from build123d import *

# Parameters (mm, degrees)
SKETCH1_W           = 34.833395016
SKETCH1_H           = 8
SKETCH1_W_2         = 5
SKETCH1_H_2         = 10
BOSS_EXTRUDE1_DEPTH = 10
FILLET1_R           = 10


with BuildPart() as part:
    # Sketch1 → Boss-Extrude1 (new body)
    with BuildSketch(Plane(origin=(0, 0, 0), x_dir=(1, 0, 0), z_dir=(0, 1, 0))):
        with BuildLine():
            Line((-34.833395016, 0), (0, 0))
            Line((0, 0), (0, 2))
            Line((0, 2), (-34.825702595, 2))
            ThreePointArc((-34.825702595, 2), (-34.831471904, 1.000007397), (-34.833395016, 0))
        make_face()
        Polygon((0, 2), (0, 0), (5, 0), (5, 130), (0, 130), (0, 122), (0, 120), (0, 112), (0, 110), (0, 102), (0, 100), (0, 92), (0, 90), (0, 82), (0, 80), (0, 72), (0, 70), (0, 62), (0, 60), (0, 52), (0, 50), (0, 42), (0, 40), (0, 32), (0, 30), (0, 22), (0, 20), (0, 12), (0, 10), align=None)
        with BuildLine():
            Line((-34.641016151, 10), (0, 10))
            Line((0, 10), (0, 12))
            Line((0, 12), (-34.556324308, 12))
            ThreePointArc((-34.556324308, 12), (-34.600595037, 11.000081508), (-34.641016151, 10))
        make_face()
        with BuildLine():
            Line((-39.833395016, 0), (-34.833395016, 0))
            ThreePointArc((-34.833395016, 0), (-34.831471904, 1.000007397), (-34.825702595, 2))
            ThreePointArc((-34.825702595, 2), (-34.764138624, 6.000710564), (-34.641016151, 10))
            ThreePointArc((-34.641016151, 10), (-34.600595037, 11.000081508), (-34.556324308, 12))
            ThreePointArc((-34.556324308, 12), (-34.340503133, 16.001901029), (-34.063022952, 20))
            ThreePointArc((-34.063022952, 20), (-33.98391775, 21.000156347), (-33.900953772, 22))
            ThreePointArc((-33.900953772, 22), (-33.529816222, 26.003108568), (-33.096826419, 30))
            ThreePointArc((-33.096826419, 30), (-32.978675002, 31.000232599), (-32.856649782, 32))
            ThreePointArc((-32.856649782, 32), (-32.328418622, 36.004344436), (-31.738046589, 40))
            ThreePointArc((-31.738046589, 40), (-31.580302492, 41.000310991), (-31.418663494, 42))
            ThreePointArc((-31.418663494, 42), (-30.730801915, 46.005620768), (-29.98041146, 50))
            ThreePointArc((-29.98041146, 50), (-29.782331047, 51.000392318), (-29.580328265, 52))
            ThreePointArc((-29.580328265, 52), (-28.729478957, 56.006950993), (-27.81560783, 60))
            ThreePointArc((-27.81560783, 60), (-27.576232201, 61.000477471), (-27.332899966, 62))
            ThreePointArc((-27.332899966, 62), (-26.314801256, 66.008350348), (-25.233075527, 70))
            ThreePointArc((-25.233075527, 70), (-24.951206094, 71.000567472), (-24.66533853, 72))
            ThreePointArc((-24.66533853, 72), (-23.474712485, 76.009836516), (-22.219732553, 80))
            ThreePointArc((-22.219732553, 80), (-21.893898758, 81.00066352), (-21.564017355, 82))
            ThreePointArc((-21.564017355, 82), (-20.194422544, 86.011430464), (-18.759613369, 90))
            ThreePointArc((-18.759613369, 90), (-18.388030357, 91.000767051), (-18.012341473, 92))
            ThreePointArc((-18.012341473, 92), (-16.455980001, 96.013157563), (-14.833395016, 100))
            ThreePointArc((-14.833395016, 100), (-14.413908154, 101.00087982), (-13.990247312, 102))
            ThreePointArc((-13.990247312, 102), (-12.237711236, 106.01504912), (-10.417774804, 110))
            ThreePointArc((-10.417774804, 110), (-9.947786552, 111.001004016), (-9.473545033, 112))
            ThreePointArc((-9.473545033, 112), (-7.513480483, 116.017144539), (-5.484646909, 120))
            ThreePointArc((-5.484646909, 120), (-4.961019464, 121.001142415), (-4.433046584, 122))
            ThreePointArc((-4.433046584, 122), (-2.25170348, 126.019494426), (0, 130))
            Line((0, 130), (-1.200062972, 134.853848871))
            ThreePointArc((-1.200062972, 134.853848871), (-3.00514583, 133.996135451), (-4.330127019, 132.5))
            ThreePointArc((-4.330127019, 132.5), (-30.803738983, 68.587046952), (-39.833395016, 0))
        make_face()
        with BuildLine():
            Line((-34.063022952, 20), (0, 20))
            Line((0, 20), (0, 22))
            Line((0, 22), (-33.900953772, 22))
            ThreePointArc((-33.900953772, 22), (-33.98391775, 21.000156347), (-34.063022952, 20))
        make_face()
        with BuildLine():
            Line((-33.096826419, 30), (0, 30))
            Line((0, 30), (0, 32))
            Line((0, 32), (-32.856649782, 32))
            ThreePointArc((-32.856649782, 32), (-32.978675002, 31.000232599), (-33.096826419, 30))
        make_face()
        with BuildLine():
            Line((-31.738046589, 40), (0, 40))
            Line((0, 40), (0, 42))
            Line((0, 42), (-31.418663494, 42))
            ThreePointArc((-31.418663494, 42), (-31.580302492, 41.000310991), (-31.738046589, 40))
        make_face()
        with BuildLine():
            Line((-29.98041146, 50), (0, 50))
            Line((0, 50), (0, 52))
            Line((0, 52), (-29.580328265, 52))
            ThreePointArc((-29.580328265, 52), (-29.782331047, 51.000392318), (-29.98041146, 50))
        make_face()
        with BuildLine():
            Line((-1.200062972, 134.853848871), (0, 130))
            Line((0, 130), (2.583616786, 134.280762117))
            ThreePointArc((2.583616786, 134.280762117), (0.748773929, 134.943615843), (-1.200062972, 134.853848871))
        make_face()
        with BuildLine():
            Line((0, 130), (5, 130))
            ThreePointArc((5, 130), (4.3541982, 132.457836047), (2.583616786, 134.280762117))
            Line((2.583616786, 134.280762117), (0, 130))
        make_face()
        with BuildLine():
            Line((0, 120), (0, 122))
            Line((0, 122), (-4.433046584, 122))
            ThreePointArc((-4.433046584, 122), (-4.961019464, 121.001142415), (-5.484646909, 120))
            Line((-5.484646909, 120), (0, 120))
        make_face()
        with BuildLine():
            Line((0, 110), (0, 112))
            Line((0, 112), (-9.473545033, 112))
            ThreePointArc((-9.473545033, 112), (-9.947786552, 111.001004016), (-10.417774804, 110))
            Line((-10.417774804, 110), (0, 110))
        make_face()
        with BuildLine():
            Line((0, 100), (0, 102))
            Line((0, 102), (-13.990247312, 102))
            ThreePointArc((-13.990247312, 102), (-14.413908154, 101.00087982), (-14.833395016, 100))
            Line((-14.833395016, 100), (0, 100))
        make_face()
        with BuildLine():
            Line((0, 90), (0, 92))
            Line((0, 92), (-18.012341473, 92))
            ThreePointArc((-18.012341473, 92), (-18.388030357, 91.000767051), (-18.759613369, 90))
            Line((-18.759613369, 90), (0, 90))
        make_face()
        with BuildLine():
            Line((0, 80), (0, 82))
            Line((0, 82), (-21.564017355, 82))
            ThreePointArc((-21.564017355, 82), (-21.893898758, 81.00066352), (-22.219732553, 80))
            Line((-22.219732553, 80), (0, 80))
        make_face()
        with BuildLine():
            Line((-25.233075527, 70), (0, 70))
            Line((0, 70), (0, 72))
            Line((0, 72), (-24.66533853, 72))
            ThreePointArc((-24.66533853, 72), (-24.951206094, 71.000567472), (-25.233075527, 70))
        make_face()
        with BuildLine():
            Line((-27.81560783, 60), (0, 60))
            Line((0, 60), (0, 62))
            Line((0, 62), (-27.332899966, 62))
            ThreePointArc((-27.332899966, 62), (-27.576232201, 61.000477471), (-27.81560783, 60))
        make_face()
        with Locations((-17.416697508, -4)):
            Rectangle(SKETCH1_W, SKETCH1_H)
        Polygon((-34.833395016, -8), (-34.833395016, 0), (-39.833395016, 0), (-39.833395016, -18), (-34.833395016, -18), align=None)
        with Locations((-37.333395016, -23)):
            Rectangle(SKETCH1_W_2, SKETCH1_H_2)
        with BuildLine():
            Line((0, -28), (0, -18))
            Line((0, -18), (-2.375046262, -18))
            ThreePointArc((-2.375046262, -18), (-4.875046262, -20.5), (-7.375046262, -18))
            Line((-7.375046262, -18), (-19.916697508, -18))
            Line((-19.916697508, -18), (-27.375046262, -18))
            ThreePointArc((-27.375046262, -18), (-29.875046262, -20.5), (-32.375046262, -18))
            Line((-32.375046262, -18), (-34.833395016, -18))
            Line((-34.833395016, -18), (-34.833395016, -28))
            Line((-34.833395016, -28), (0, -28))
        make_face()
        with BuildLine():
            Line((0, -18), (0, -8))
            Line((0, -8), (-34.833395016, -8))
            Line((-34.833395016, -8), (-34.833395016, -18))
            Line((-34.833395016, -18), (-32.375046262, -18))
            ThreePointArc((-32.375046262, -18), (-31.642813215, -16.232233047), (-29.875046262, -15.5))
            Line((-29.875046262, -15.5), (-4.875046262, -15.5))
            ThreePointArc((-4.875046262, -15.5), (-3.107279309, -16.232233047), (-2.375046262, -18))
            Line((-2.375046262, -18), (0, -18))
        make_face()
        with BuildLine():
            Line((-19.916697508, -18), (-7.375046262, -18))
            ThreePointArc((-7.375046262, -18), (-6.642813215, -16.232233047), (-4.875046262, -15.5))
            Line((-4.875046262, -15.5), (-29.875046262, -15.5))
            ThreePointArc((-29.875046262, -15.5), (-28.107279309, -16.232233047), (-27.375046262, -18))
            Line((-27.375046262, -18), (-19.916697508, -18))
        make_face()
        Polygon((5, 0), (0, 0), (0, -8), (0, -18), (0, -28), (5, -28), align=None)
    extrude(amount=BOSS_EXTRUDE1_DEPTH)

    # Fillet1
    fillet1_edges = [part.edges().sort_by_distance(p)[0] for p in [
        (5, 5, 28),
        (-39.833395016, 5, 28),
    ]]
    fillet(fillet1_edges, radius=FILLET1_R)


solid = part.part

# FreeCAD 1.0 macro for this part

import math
import FreeCAD as App
import Part
import Sketcher
Q = App.Units.Quantity


def edges_at(feature, points):
    """Names of the edges that pass closest to the given points."""
    edges = feature.Shape.Edges
    near = lambda p: min(range(len(edges)), key=lambda i: edges[i].distToShape(Part.Vertex(*p))[0])
    return sorted({f"Edge{near(p) + 1}" for p in points})

doc = App.newDocument("Part")
body = doc.addObject("PartDesign::Body", "Body")

# Sketch on XZ plane
sketch1 = body.newObject("Sketcher::SketchObject", "Sketch")
sketch1.AttachmentSupport = (doc.getObject("XZ_Plane"), [""])
sketch1.MapMode = "FlatFace"
sketch1.addGeometry(Part.ArcOfCircle(Part.Circle(App.Vector(0, -130, 0), App.Vector(0, 0, 1), 5), math.radians(-59), math.radians(0)), False)
sketch1.addGeometry(Part.ArcOfCircle(Part.Circle(App.Vector(0, -130, 0), App.Vector(0, 0, 1), 5), math.radians(-104), math.radians(-59)), False)
sketch1.addGeometry(Part.ArcOfCircle(Part.Circle(App.Vector(0, -130, 0), App.Vector(0, 0, 1), 5), math.radians(-150), math.radians(-104)), False)
sketch1.addGeometry(Part.ArcOfCircle(Part.Circle(App.Vector(225.2, 0, 0), App.Vector(0, 0, 1), 265), math.radians(180), math.radians(210)), False)
sketch1.addGeometry(Part.LineSegment(App.Vector(-39.8, 0, 0), App.Vector(-39.8, 28, 0)), False)
sketch1.addGeometry(Part.LineSegment(App.Vector(-39.8, 28, 0), App.Vector(5, 28, 0)), False)
sketch1.addGeometry(Part.LineSegment(App.Vector(5, 28, 0), App.Vector(5, -130, 0)), False)
sketch1.addGeometry(Part.ArcOfCircle(Part.Circle(App.Vector(-4.9, 18, 0), App.Vector(0, 0, 1), 2.5), math.radians(0), math.radians(180)), False)
sketch1.addGeometry(Part.ArcOfCircle(Part.Circle(App.Vector(-4.9, 18, 0), App.Vector(0, 0, 1), 2.5), math.radians(180), math.radians(270)), False)
sketch1.addGeometry(Part.ArcOfCircle(Part.Circle(App.Vector(-4.9, 18, 0), App.Vector(0, 0, 1), 2.5), math.radians(-90), math.radians(0)), False)
sketch1.addGeometry(Part.ArcOfCircle(Part.Circle(App.Vector(-29.9, 18, 0), App.Vector(0, 0, 1), 2.5), math.radians(0), math.radians(180)), False)
sketch1.addGeometry(Part.ArcOfCircle(Part.Circle(App.Vector(-29.9, 18, 0), App.Vector(0, 0, 1), 2.5), math.radians(180), math.radians(270)), False)
sketch1.addGeometry(Part.ArcOfCircle(Part.Circle(App.Vector(-29.9, 18, 0), App.Vector(0, 0, 1), 2.5), math.radians(-90), math.radians(0)), False)
sketch1.addGeometry(Part.LineSegment(App.Vector(-34.6, -10, 0), App.Vector(0, -10, 0)), False)
sketch1.addGeometry(Part.LineSegment(App.Vector(0, -10, 0), App.Vector(0, -2, 0)), False)
sketch1.addGeometry(Part.LineSegment(App.Vector(0, -2, 0), App.Vector(-34.8, -2, 0)), False)
sketch1.addGeometry(Part.ArcOfCircle(Part.Circle(App.Vector(225.2, 0, 0), App.Vector(0, 0, 1), 260), math.radians(-179.56), math.radians(-177.8)), False)
sketch1.addGeometry(Part.ArcOfCircle(Part.Circle(App.Vector(225.2, 0, 0), App.Vector(0, 0, 1), 260), math.radians(-177.35), math.radians(-175.59)), False)
sketch1.addGeometry(Part.LineSegment(App.Vector(-34.1, -20, 0), App.Vector(0, -20, 0)), False)
sketch1.addGeometry(Part.LineSegment(App.Vector(0, -20, 0), App.Vector(0, -12, 0)), False)
sketch1.addGeometry(Part.LineSegment(App.Vector(0, -12, 0), App.Vector(-34.6, -12, 0)), False)
sketch1.addGeometry(Part.ArcOfCircle(Part.Circle(App.Vector(225.2, 0, 0), App.Vector(0, 0, 1), 260), math.radians(-175.15), math.radians(-173.37)), False)
sketch1.addGeometry(Part.LineSegment(App.Vector(-33.1, -30, 0), App.Vector(0, -30, 0)), False)
sketch1.addGeometry(Part.LineSegment(App.Vector(0, -30, 0), App.Vector(0, -22, 0)), False)
sketch1.addGeometry(Part.LineSegment(App.Vector(0, -22, 0), App.Vector(-33.9, -22, 0)), False)
sketch1.addGeometry(Part.ArcOfCircle(Part.Circle(App.Vector(225.2, 0, 0), App.Vector(0, 0, 1), 260), math.radians(-172.93), math.radians(-171.15)), False)
sketch1.addGeometry(Part.LineSegment(App.Vector(-31.7, -40, 0), App.Vector(0, -40, 0)), False)
sketch1.addGeometry(Part.LineSegment(App.Vector(0, -40, 0), App.Vector(0, -32, 0)), False)
sketch1.addGeometry(Part.LineSegment(App.Vector(0, -32, 0), App.Vector(-32.9, -32, 0)), False)
sketch1.addGeometry(Part.ArcOfCircle(Part.Circle(App.Vector(225.2, 0, 0), App.Vector(0, 0, 1), 260), math.radians(-170.7), math.radians(-168.91)), False)
sketch1.addGeometry(Part.LineSegment(App.Vector(-30, -50, 0), App.Vector(0, -50, 0)), False)
sketch1.addGeometry(Part.LineSegment(App.Vector(0, -50, 0), App.Vector(0, -42, 0)), False)
sketch1.addGeometry(Part.LineSegment(App.Vector(0, -42, 0), App.Vector(-31.4, -42, 0)), False)
sketch1.addGeometry(Part.ArcOfCircle(Part.Circle(App.Vector(225.2, 0, 0), App.Vector(0, 0, 1), 260), math.radians(-152.02), math.radians(-150)), False)
sketch1.addGeometry(Part.LineSegment(App.Vector(0, -130, 0), App.Vector(0, -122, 0)), False)
sketch1.addGeometry(Part.LineSegment(App.Vector(0, -122, 0), App.Vector(-4.4, -122, 0)), False)
sketch1.addGeometry(Part.LineSegment(App.Vector(0, -120, 0), App.Vector(0, -112, 0)), False)
sketch1.addGeometry(Part.LineSegment(App.Vector(0, -112, 0), App.Vector(-9.5, -112, 0)), False)
sketch1.addGeometry(Part.ArcOfCircle(Part.Circle(App.Vector(225.2, 0, 0), App.Vector(0, 0, 1), 260), math.radians(-154.48), math.radians(-152.51)), False)
sketch1.addGeometry(Part.LineSegment(App.Vector(-5.5, -120, 0), App.Vector(0, -120, 0)), False)
sketch1.addGeometry(Part.LineSegment(App.Vector(0, -110, 0), App.Vector(0, -102, 0)), False)
sketch1.addGeometry(Part.LineSegment(App.Vector(0, -102, 0), App.Vector(-14, -102, 0)), False)
sketch1.addGeometry(Part.ArcOfCircle(Part.Circle(App.Vector(225.2, 0, 0), App.Vector(0, 0, 1), 260), math.radians(-156.9), math.radians(-154.97)), False)
sketch1.addGeometry(Part.LineSegment(App.Vector(-10.4, -110, 0), App.Vector(0, -110, 0)), False)
sketch1.addGeometry(Part.LineSegment(App.Vector(0, -100, 0), App.Vector(0, -92, 0)), False)
sketch1.addGeometry(Part.LineSegment(App.Vector(0, -92, 0), App.Vector(-18, -92, 0)), False)
sketch1.addGeometry(Part.ArcOfCircle(Part.Circle(App.Vector(225.2, 0, 0), App.Vector(0, 0, 1), 260), math.radians(-159.28), math.radians(-157.38)), False)
sketch1.addGeometry(Part.LineSegment(App.Vector(-14.8, -100, 0), App.Vector(0, -100, 0)), False)
sketch1.addGeometry(Part.LineSegment(App.Vector(0, -90, 0), App.Vector(0, -82, 0)), False)
sketch1.addGeometry(Part.LineSegment(App.Vector(0, -82, 0), App.Vector(-21.6, -82, 0)), False)
sketch1.addGeometry(Part.ArcOfCircle(Part.Circle(App.Vector(225.2, 0, 0), App.Vector(0, 0, 1), 260), math.radians(-161.62), math.radians(-159.75)), False)
sketch1.addGeometry(Part.LineSegment(App.Vector(-18.8, -90, 0), App.Vector(0, -90, 0)), False)
sketch1.addGeometry(Part.LineSegment(App.Vector(0, -80, 0), App.Vector(0, -72, 0)), False)
sketch1.addGeometry(Part.LineSegment(App.Vector(0, -72, 0), App.Vector(-24.7, -72, 0)), False)
sketch1.addGeometry(Part.ArcOfCircle(Part.Circle(App.Vector(225.2, 0, 0), App.Vector(0, 0, 1), 260), math.radians(-163.92), math.radians(-162.08)), False)
sketch1.addGeometry(Part.LineSegment(App.Vector(-22.2, -80, 0), App.Vector(0, -80, 0)), False)
sketch1.addGeometry(Part.LineSegment(App.Vector(0, -70, 0), App.Vector(0, -62, 0)), False)
sketch1.addGeometry(Part.LineSegment(App.Vector(0, -62, 0), App.Vector(-27.3, -62, 0)), False)
sketch1.addGeometry(Part.ArcOfCircle(Part.Circle(App.Vector(225.2, 0, 0), App.Vector(0, 0, 1), 260), math.radians(-166.2), math.radians(-164.38)), False)
sketch1.addGeometry(Part.LineSegment(App.Vector(-25.2, -70, 0), App.Vector(0, -70, 0)), False)
sketch1.addGeometry(Part.LineSegment(App.Vector(0, -60, 0), App.Vector(0, -52, 0)), False)
sketch1.addGeometry(Part.LineSegment(App.Vector(0, -52, 0), App.Vector(-29.6, -52, 0)), False)
sketch1.addGeometry(Part.ArcOfCircle(Part.Circle(App.Vector(225.2, 0, 0), App.Vector(0, 0, 1), 260), math.radians(-168.46), math.radians(-166.66)), False)
sketch1.addGeometry(Part.LineSegment(App.Vector(-27.8, -60, 0), App.Vector(0, -60, 0)), False)
sketch1.addConstraint(Sketcher.Constraint("Tangent", 0, 1, 1, 2))
sketch1.addConstraint(Sketcher.Constraint("Tangent", 1, 1, 2, 2))
sketch1.addConstraint(Sketcher.Constraint("Tangent", 2, 1, 3, 2))
sketch1.addConstraint(Sketcher.Constraint("Tangent", 3, 1, 4, 1))
sketch1.addConstraint(Sketcher.Constraint("Coincident", 4, 2, 5, 1))
sketch1.addConstraint(Sketcher.Constraint("Coincident", 5, 2, 6, 1))
sketch1.addConstraint(Sketcher.Constraint("Tangent", 6, 2, 0, 2))
sketch1.addConstraint(Sketcher.Constraint("Tangent", 7, 2, 8, 1))
sketch1.addConstraint(Sketcher.Constraint("Tangent", 8, 2, 9, 1))
sketch1.addConstraint(Sketcher.Constraint("Tangent", 9, 2, 7, 1))
sketch1.addConstraint(Sketcher.Constraint("Tangent", 10, 2, 11, 1))
sketch1.addConstraint(Sketcher.Constraint("Tangent", 11, 2, 12, 1))
sketch1.addConstraint(Sketcher.Constraint("Tangent", 12, 2, 10, 1))
sketch1.addConstraint(Sketcher.Constraint("Coincident", 13, 2, 14, 1))
sketch1.addConstraint(Sketcher.Constraint("Coincident", 14, 2, 15, 1))
sketch1.addConstraint(Sketcher.Constraint("Coincident", 15, 2, 16, 1))
sketch1.addConstraint(Sketcher.Constraint("Coincident", 16, 2, 13, 1))
sketch1.addConstraint(Sketcher.Constraint("Coincident", 17, 2, 18, 1))
sketch1.addConstraint(Sketcher.Constraint("Coincident", 18, 2, 19, 1))
sketch1.addConstraint(Sketcher.Constraint("Coincident", 19, 2, 20, 1))
sketch1.addConstraint(Sketcher.Constraint("Coincident", 20, 2, 17, 1))
sketch1.addConstraint(Sketcher.Constraint("Coincident", 21, 2, 22, 1))
sketch1.addConstraint(Sketcher.Constraint("Coincident", 22, 2, 23, 1))
sketch1.addConstraint(Sketcher.Constraint("Coincident", 23, 2, 24, 1))
sketch1.addConstraint(Sketcher.Constraint("Coincident", 24, 2, 21, 1))
sketch1.addConstraint(Sketcher.Constraint("Coincident", 25, 2, 26, 1))
sketch1.addConstraint(Sketcher.Constraint("Coincident", 26, 2, 27, 1))
sketch1.addConstraint(Sketcher.Constraint("Coincident", 27, 2, 28, 1))
sketch1.addConstraint(Sketcher.Constraint("Coincident", 28, 2, 25, 1))
sketch1.addConstraint(Sketcher.Constraint("Coincident", 29, 2, 30, 1))
sketch1.addConstraint(Sketcher.Constraint("Coincident", 30, 2, 31, 1))
sketch1.addConstraint(Sketcher.Constraint("Coincident", 31, 2, 32, 1))
sketch1.addConstraint(Sketcher.Constraint("Coincident", 32, 2, 29, 1))
sketch1.addConstraint(Sketcher.Constraint("Coincident", 33, 2, 34, 1))
sketch1.addConstraint(Sketcher.Constraint("Coincident", 34, 2, 35, 1))
sketch1.addConstraint(Sketcher.Constraint("Coincident", 35, 2, 33, 1))
sketch1.addConstraint(Sketcher.Constraint("Coincident", 36, 2, 37, 1))
sketch1.addConstraint(Sketcher.Constraint("Coincident", 37, 2, 38, 1))
sketch1.addConstraint(Sketcher.Constraint("Coincident", 38, 2, 39, 1))
sketch1.addConstraint(Sketcher.Constraint("Coincident", 39, 2, 36, 1))
sketch1.addConstraint(Sketcher.Constraint("Coincident", 40, 2, 41, 1))
sketch1.addConstraint(Sketcher.Constraint("Coincident", 41, 2, 42, 1))
sketch1.addConstraint(Sketcher.Constraint("Coincident", 42, 2, 43, 1))
sketch1.addConstraint(Sketcher.Constraint("Coincident", 43, 2, 40, 1))
sketch1.addConstraint(Sketcher.Constraint("Coincident", 44, 2, 45, 1))
sketch1.addConstraint(Sketcher.Constraint("Coincident", 45, 2, 46, 1))
sketch1.addConstraint(Sketcher.Constraint("Coincident", 46, 2, 47, 1))
sketch1.addConstraint(Sketcher.Constraint("Coincident", 47, 2, 44, 1))
sketch1.addConstraint(Sketcher.Constraint("Coincident", 48, 2, 49, 1))
sketch1.addConstraint(Sketcher.Constraint("Coincident", 49, 2, 50, 1))
sketch1.addConstraint(Sketcher.Constraint("Coincident", 50, 2, 51, 1))
sketch1.addConstraint(Sketcher.Constraint("Coincident", 51, 2, 48, 1))
sketch1.addConstraint(Sketcher.Constraint("Coincident", 52, 2, 53, 1))
sketch1.addConstraint(Sketcher.Constraint("Coincident", 53, 2, 54, 1))
sketch1.addConstraint(Sketcher.Constraint("Coincident", 54, 2, 55, 1))
sketch1.addConstraint(Sketcher.Constraint("Coincident", 55, 2, 52, 1))
sketch1.addConstraint(Sketcher.Constraint("Coincident", 56, 2, 57, 1))
sketch1.addConstraint(Sketcher.Constraint("Coincident", 57, 2, 58, 1))
sketch1.addConstraint(Sketcher.Constraint("Coincident", 58, 2, 59, 1))
sketch1.addConstraint(Sketcher.Constraint("Coincident", 59, 2, 56, 1))
sketch1.addConstraint(Sketcher.Constraint("Coincident", 60, 2, 61, 1))
sketch1.addConstraint(Sketcher.Constraint("Coincident", 61, 2, 62, 1))
sketch1.addConstraint(Sketcher.Constraint("Coincident", 62, 2, 63, 1))
sketch1.addConstraint(Sketcher.Constraint("Coincident", 63, 2, 60, 1))
sketch1.addConstraint(Sketcher.Constraint("Vertical", 4))
sketch1.addConstraint(Sketcher.Constraint("Horizontal", 5))
sketch1.addConstraint(Sketcher.Constraint("Vertical", 6))
sketch1.addConstraint(Sketcher.Constraint("Horizontal", 13))
sketch1.addConstraint(Sketcher.Constraint("Vertical", 14))
sketch1.addConstraint(Sketcher.Constraint("Horizontal", 15))
sketch1.addConstraint(Sketcher.Constraint("Horizontal", 18))
sketch1.addConstraint(Sketcher.Constraint("Vertical", 19))
sketch1.addConstraint(Sketcher.Constraint("Horizontal", 20))
sketch1.addConstraint(Sketcher.Constraint("Horizontal", 22))
sketch1.addConstraint(Sketcher.Constraint("Vertical", 23))
sketch1.addConstraint(Sketcher.Constraint("Horizontal", 24))
sketch1.addConstraint(Sketcher.Constraint("Horizontal", 26))
sketch1.addConstraint(Sketcher.Constraint("Vertical", 27))
sketch1.addConstraint(Sketcher.Constraint("Horizontal", 28))
sketch1.addConstraint(Sketcher.Constraint("Horizontal", 30))
sketch1.addConstraint(Sketcher.Constraint("Vertical", 31))
sketch1.addConstraint(Sketcher.Constraint("Horizontal", 32))
sketch1.addConstraint(Sketcher.Constraint("Vertical", 34))
sketch1.addConstraint(Sketcher.Constraint("Horizontal", 35))
sketch1.addConstraint(Sketcher.Constraint("Vertical", 36))
sketch1.addConstraint(Sketcher.Constraint("Horizontal", 37))
sketch1.addConstraint(Sketcher.Constraint("Horizontal", 39))
sketch1.addConstraint(Sketcher.Constraint("Vertical", 40))
sketch1.addConstraint(Sketcher.Constraint("Horizontal", 41))
sketch1.addConstraint(Sketcher.Constraint("Horizontal", 43))
sketch1.addConstraint(Sketcher.Constraint("Vertical", 44))
sketch1.addConstraint(Sketcher.Constraint("Horizontal", 45))
sketch1.addConstraint(Sketcher.Constraint("Horizontal", 47))
sketch1.addConstraint(Sketcher.Constraint("Vertical", 48))
sketch1.addConstraint(Sketcher.Constraint("Horizontal", 49))
sketch1.addConstraint(Sketcher.Constraint("Horizontal", 51))
sketch1.addConstraint(Sketcher.Constraint("Vertical", 52))
sketch1.addConstraint(Sketcher.Constraint("Horizontal", 53))
sketch1.addConstraint(Sketcher.Constraint("Horizontal", 55))
sketch1.addConstraint(Sketcher.Constraint("Vertical", 56))
sketch1.addConstraint(Sketcher.Constraint("Horizontal", 57))
sketch1.addConstraint(Sketcher.Constraint("Horizontal", 59))
sketch1.addConstraint(Sketcher.Constraint("Vertical", 60))
sketch1.addConstraint(Sketcher.Constraint("Horizontal", 61))
sketch1.addConstraint(Sketcher.Constraint("Horizontal", 63))
sketch1.addConstraint(Sketcher.Constraint("Coincident", 2, 3, 0, 3))
sketch1.addConstraint(Sketcher.Constraint("Coincident", 16, 3, 3, 3))
sketch1.addConstraint(Sketcher.Constraint("Coincident", 17, 3, 3, 3))
sketch1.addConstraint(Sketcher.Constraint("Coincident", 21, 3, 3, 3))
sketch1.addConstraint(Sketcher.Constraint("Coincident", 25, 3, 3, 3))
sketch1.addConstraint(Sketcher.Constraint("Coincident", 29, 3, 3, 3))
sketch1.addConstraint(Sketcher.Constraint("Coincident", 33, 3, 3, 3))
sketch1.addConstraint(Sketcher.Constraint("Coincident", 38, 3, 3, 3))
sketch1.addConstraint(Sketcher.Constraint("Coincident", 42, 3, 3, 3))
sketch1.addConstraint(Sketcher.Constraint("Coincident", 46, 3, 3, 3))
sketch1.addConstraint(Sketcher.Constraint("Coincident", 50, 3, 3, 3))
sketch1.addConstraint(Sketcher.Constraint("Coincident", 54, 3, 3, 3))
sketch1.addConstraint(Sketcher.Constraint("Coincident", 58, 3, 3, 3))
sketch1.addConstraint(Sketcher.Constraint("Coincident", 62, 3, 3, 3))
sketch1.addConstraint(Sketcher.Constraint("Coincident", 33, 2, 0, 3))
sketch1.addConstraint(Sketcher.Constraint("Equal", 9, 10))
sketch1.addConstraint(Sketcher.Constraint("Equal", 16, 17))
sketch1.addConstraint(Sketcher.Constraint("Equal", 21, 25))
sketch1.addConstraint(Sketcher.Constraint("Equal", 17, 29))
sketch1.addConstraint(Sketcher.Constraint("Equal", 21, 33))
sketch1.addConstraint(Sketcher.Constraint("Equal", 33, 38))
sketch1.addConstraint(Sketcher.Constraint("Equal", 29, 42))
sketch1.addConstraint(Sketcher.Constraint("Equal", 38, 46))
sketch1.addConstraint(Sketcher.Constraint("Equal", 46, 50))
sketch1.addConstraint(Sketcher.Constraint("Equal", 38, 54))
sketch1.addConstraint(Sketcher.Constraint("Equal", 50, 58))
sketch1.addConstraint(Sketcher.Constraint("Equal", 58, 62))
sketch1.addConstraint(Sketcher.Constraint("PointOnObject", 0, 3, -2))
sketch1.addConstraint(Sketcher.Constraint("PointOnObject", 3, 3, -1))
sketch1.addConstraint(Sketcher.Constraint("PointOnObject", 13, 2, -2))
sketch1.addConstraint(Sketcher.Constraint("PointOnObject", 18, 2, -2))
sketch1.addConstraint(Sketcher.Constraint("PointOnObject", 22, 2, -2))
sketch1.addConstraint(Sketcher.Constraint("PointOnObject", 26, 2, -2))
sketch1.addConstraint(Sketcher.Constraint("PointOnObject", 30, 2, -2))
sketch1.addConstraint(Sketcher.Constraint("PointOnObject", 36, 2, -2))
sketch1.addConstraint(Sketcher.Constraint("PointOnObject", 40, 2, -2))
sketch1.addConstraint(Sketcher.Constraint("PointOnObject", 44, 2, -2))
sketch1.addConstraint(Sketcher.Constraint("PointOnObject", 48, 2, -2))
sketch1.addConstraint(Sketcher.Constraint("PointOnObject", 52, 2, -2))
sketch1.addConstraint(Sketcher.Constraint("PointOnObject", 56, 2, -2))
sketch1.addConstraint(Sketcher.Constraint("PointOnObject", 60, 2, -2))
sketch1.addConstraint(Sketcher.Constraint("Horizontal", 9, 3, 10, 3))
sketch1.addConstraint(Sketcher.Constraint("Horizontal", 12, 3, 7, 2))
sketch1.addConstraint(Sketcher.Constraint("Horizontal", 7, 2, 9, 2))
sketch1.addConstraint(Sketcher.Constraint("Horizontal", 9, 2, 10, 2))
sketch1.addConstraint(Sketcher.Constraint("Horizontal", 10, 2, 12, 2))
sketch1.addConstraint(Sketcher.Constraint("Vertical", 9, 3, 8, 2))
sketch1.addConstraint(Sketcher.Constraint("Vertical", 12, 3, 11, 2))
sketch1.addConstraint(Sketcher.Constraint("Equal", 14, 19))
sketch1.addConstraint(Sketcher.Constraint("Equal", 19, 23))
sketch1.addConstraint(Sketcher.Constraint("Equal", 23, 27))
sketch1.addConstraint(Sketcher.Constraint("Equal", 27, 31))
sketch1.addConstraint(Sketcher.Constraint("Equal", 31, 34))
sketch1.addConstraint(Sketcher.Constraint("Equal", 34, 36))
sketch1.addConstraint(Sketcher.Constraint("Equal", 36, 40))
sketch1.addConstraint(Sketcher.Constraint("Equal", 40, 44))
sketch1.addConstraint(Sketcher.Constraint("Equal", 44, 48))
sketch1.addConstraint(Sketcher.Constraint("Equal", 48, 52))
sketch1.addConstraint(Sketcher.Constraint("Equal", 52, 56))
sketch1.addConstraint(Sketcher.Constraint("Equal", 56, 60))
sketch1.addConstraint(Sketcher.Constraint("Radius", 0, Q("5 mm")))
sketch1.addConstraint(Sketcher.Constraint("Radius", 3, Q("265 mm")))
sketch1.addConstraint(Sketcher.Constraint("Radius", 7, Q("2.5 mm")))
sketch1.addConstraint(Sketcher.Constraint("DistanceY", 4, 1, 4, 2, Q("28 mm")))
sketch1.addConstraint(Sketcher.Constraint("DistanceY", 6, 2, 6, 1, Q("158 mm")))
sketch1.addConstraint(Sketcher.Constraint("DistanceY", 14, 1, 14, 2, Q("8 mm")))
sketch1.addConstraint(Sketcher.Constraint("DistanceY", -1, 1, 7, 3, Q("18 mm")))
sketch1.addConstraint(Sketcher.Constraint("DistanceY", 13, 2, -1, 1, Q("10 mm")))
sketch1.addConstraint(Sketcher.Constraint("DistanceY", 18, 2, -1, 1, Q("20 mm")))
sketch1.addConstraint(Sketcher.Constraint("DistanceY", 22, 2, -1, 1, Q("30 mm")))
sketch1.addConstraint(Sketcher.Constraint("DistanceY", 26, 2, -1, 1, Q("40 mm")))
sketch1.addConstraint(Sketcher.Constraint("DistanceY", 30, 2, -1, 1, Q("50 mm")))
sketch1.addConstraint(Sketcher.Constraint("DistanceY", 36, 2, -1, 1, Q("112 mm")))
sketch1.addConstraint(Sketcher.Constraint("DistanceY", 40, 2, -1, 1, Q("102 mm")))
sketch1.addConstraint(Sketcher.Constraint("DistanceY", 44, 2, -1, 1, Q("92 mm")))
sketch1.addConstraint(Sketcher.Constraint("DistanceY", 48, 2, -1, 1, Q("82 mm")))
sketch1.addConstraint(Sketcher.Constraint("DistanceY", 52, 2, -1, 1, Q("72 mm")))
sketch1.addConstraint(Sketcher.Constraint("DistanceY", 56, 2, -1, 1, Q("62 mm")))
sketch1.addConstraint(Sketcher.Constraint("DistanceY", 60, 2, -1, 1, Q("52 mm")))
sketch1.addConstraint(Sketcher.Constraint("Radius", 16, Q("260.000003 mm")))
sketch1.addConstraint(Sketcher.Constraint("DistanceY", 1, 1, -1, 1, Q("134.853849 mm")))
sketch1.addConstraint(Sketcher.Constraint("DistanceX", 7, 3, -1, 1, Q("4.875046 mm")))
sketch1.addConstraint(Sketcher.Constraint("DistanceX", 10, 3, -1, 1, Q("29.875046 mm")))
sketch1.addConstraint(Sketcher.Constraint("DistanceX", -1, 1, 0, 1, Q("2.583617 mm")))
pad1 = body.newObject("PartDesign::Pad", "Pad")
pad1.Profile = sketch1
pad1.Length = 10
pad1.Reversed = True
doc.recompute()

fillet = body.newObject("PartDesign::Fillet", "Fillet")
fillet.Base = (pad1, edges_at(pad1, [(5, 5, 28), (-39.833, 5, 28)]))
fillet.Radius = 10

doc.recompute()
